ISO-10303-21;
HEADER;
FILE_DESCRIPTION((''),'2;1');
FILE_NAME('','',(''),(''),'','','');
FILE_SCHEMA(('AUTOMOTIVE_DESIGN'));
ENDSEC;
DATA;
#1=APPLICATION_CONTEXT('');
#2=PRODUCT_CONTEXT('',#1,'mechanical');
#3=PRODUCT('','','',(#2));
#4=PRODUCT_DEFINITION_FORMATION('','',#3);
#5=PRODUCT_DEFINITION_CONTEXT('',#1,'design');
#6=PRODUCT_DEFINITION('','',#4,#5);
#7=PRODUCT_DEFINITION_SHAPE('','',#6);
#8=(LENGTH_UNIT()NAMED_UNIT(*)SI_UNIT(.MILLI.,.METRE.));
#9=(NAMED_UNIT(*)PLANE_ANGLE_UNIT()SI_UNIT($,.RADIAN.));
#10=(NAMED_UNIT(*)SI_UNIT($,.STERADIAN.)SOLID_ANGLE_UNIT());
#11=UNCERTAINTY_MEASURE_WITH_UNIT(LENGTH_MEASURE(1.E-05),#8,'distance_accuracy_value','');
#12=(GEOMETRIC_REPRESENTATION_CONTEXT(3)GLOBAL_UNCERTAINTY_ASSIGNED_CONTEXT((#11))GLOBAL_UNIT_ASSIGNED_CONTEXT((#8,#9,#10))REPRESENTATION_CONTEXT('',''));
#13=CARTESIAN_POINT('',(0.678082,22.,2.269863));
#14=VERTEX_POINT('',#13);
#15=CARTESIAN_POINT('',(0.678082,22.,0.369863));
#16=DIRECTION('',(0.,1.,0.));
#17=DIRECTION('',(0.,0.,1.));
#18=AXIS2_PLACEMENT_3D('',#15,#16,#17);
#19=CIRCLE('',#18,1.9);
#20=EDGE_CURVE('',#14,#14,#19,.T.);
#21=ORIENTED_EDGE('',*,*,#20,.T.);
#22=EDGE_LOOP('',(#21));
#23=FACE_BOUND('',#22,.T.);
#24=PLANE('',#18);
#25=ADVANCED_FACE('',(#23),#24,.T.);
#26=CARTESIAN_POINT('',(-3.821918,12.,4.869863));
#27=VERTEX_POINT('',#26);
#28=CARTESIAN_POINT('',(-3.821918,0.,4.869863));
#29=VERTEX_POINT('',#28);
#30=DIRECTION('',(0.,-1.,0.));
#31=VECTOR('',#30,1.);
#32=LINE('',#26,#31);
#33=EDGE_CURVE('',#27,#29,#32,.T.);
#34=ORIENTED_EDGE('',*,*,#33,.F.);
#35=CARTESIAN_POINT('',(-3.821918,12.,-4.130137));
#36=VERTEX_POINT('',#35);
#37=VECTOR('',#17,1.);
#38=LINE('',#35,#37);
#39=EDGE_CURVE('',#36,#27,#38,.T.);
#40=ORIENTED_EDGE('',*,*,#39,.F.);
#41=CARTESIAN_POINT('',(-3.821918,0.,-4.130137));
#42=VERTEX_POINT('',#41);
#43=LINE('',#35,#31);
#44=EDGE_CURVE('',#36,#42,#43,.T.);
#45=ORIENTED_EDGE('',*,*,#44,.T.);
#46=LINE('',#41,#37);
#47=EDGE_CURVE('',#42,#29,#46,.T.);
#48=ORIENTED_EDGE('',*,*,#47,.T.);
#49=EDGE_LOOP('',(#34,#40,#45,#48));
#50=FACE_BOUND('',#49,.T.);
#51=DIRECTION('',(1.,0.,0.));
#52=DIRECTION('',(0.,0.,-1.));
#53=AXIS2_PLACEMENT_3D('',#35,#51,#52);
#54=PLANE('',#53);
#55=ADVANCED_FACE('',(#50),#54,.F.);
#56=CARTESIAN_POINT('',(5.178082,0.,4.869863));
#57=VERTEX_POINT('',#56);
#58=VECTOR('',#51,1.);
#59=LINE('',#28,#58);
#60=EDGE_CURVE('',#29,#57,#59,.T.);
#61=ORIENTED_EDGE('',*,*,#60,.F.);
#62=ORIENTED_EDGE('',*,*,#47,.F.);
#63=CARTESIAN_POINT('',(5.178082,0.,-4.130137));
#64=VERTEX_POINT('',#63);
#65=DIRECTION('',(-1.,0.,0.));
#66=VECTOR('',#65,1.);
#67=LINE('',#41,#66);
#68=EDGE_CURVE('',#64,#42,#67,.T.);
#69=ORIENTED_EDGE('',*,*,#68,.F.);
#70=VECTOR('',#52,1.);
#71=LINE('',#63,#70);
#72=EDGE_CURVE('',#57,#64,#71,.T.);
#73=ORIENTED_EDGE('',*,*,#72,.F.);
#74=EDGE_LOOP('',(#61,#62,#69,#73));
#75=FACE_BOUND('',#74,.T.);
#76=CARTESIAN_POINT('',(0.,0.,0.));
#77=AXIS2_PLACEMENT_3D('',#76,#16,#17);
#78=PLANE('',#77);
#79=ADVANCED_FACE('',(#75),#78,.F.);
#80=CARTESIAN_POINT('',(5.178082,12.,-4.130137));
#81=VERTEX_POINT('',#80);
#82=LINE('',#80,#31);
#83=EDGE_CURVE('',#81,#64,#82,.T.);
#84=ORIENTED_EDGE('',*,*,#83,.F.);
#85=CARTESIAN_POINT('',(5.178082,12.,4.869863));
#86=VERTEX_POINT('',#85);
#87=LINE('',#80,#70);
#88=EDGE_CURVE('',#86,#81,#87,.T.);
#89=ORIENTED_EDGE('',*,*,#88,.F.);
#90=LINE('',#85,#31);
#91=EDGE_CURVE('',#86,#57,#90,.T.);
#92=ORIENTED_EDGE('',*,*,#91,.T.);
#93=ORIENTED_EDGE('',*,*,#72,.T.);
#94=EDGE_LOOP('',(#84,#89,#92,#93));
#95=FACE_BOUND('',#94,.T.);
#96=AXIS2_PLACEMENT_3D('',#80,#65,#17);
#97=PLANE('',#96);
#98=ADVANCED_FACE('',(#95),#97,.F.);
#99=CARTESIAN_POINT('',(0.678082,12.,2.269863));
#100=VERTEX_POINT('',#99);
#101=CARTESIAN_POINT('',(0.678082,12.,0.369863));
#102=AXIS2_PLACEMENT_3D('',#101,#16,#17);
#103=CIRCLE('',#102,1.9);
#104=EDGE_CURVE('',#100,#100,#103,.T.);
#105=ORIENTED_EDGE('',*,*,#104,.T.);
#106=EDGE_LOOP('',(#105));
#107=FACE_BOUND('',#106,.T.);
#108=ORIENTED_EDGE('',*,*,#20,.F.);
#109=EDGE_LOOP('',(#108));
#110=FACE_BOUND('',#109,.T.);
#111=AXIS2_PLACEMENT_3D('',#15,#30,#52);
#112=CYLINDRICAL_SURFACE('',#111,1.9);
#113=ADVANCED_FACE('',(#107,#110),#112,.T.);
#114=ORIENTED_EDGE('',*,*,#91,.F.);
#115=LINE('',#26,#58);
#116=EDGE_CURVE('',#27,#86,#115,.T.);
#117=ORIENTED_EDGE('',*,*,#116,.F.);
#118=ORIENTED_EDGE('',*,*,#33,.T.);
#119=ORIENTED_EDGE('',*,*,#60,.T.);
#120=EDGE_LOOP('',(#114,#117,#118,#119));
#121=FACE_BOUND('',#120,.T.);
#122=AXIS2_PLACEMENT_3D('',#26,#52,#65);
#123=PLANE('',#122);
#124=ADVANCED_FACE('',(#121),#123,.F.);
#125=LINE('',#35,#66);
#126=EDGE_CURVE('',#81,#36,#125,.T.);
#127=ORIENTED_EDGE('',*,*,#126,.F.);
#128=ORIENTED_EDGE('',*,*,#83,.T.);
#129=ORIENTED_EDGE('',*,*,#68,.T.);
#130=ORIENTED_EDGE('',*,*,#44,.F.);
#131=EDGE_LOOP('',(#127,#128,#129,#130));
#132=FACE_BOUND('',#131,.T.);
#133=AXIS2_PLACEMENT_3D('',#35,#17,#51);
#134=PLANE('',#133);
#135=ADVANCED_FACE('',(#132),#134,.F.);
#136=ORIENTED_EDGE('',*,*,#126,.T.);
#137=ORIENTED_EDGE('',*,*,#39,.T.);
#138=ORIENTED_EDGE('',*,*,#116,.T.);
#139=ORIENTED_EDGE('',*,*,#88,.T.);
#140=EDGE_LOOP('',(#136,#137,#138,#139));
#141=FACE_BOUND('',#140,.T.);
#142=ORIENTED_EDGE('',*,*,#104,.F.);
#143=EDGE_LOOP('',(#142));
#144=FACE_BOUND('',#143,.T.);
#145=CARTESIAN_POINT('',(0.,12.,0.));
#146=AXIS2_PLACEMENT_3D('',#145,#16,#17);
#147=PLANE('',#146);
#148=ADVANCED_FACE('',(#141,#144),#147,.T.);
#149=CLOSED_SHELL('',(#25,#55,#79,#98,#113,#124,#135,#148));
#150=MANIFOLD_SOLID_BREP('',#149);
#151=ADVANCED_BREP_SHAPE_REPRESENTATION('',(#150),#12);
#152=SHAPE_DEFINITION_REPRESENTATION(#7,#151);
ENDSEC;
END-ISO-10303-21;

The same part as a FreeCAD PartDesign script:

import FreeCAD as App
import Part
import Sketcher

doc = App.newDocument("Part")
params = doc.addObject("Spreadsheet::Sheet", "Params")
for row, (alias, value) in enumerate([
    ("sketch1_width", "9 mm"),
    ("pad1_length", "12 mm"),
    ("sketch2_diameter", "3.8 mm"),
    ("pad2_length", "10 mm"),
], start=1):
    params.set(f"A{row}", alias)
    params.set(f"B{row}", "=" + value)
    params.setAlias(f"B{row}", alias)

body = doc.addObject("PartDesign::Body", "Body")

# Sketch on XZ plane
sketch1 = body.newObject("Sketcher::SketchObject", "Sketch")
sketch1.AttachmentSupport = (doc.getObject("XZ_Plane"), [""])
sketch1.MapMode = "FlatFace"
sketch1.addGeometry([
    Part.LineSegment(App.Vector(-3.821918, -4.130137, 0), App.Vector(-3.821918, 4.869863, 0)),
    Part.LineSegment(App.Vector(-3.821918, 4.869863, 0), App.Vector(5.178082, 4.869863, 0)),
    Part.LineSegment(App.Vector(5.178082, 4.869863, 0), App.Vector(5.178082, -4.130137, 0)),
    Part.LineSegment(App.Vector(5.178082, -4.130137, 0), App.Vector(-3.821918, -4.130137, 0)),
], False)
sketch1.addConstraint([
    Sketcher.Constraint("Coincident", 0, 2, 1, 1),
    Sketcher.Constraint("Coincident", 1, 2, 2, 1),
    Sketcher.Constraint("Coincident", 2, 2, 3, 1),
    Sketcher.Constraint("Coincident", 3, 2, 0, 1),
    Sketcher.Constraint("Vertical", 0),
    Sketcher.Constraint("Horizontal", 1),
    Sketcher.Constraint("Vertical", 2),
    Sketcher.Constraint("Horizontal", 3),
    Sketcher.Constraint("Equal", 3, 0),
    Sketcher.Constraint("DistanceX", 1, 1, 1, 2, 9.0),
    Sketcher.Constraint("DistanceX", 0, 2, -1, 1, 3.821918),
    Sketcher.Constraint("DistanceY", -1, 1, 0, 2, 4.869863),
])
sketch1.setExpression("Constraints[9]", "Params.sketch1_width")
pad1 = body.newObject("PartDesign::Pad", "Pad")
pad1.Profile = sketch1
pad1.setExpression("Length", "Params.pad1_length")
pad1.Reversed = True

# Sketch on XZ plane
sketch2 = body.newObject("Sketcher::SketchObject", "Sketch001")
sketch2.AttachmentSupport = (doc.getObject("XZ_Plane"), [""])
sketch2.MapMode = "FlatFace"
sketch2.AttachmentOffset = App.Placement(App.Vector(0, 0, -12), App.Rotation())
sketch2.addGeometry(Part.Circle(App.Vector(0.678082, 0.369863, 0), App.Vector(0, 0, 1), 1.9), False)
sketch2.addConstraint([
    Sketcher.Constraint("Diameter", 0, 3.8),
    Sketcher.Constraint("DistanceX", -1, 1, 0, 3, 0.678082),
    Sketcher.Constraint("DistanceY", -1, 1, 0, 3, 0.369863),
])
sketch2.setExpression("Constraints[0]", "Params.sketch2_diameter")
pad2 = body.newObject("PartDesign::Pad", "Pad001")
pad2.Profile = sketch2
pad2.setExpression("Length", "Params.pad2_length")
pad2.Reversed = True

doc.recompute()
